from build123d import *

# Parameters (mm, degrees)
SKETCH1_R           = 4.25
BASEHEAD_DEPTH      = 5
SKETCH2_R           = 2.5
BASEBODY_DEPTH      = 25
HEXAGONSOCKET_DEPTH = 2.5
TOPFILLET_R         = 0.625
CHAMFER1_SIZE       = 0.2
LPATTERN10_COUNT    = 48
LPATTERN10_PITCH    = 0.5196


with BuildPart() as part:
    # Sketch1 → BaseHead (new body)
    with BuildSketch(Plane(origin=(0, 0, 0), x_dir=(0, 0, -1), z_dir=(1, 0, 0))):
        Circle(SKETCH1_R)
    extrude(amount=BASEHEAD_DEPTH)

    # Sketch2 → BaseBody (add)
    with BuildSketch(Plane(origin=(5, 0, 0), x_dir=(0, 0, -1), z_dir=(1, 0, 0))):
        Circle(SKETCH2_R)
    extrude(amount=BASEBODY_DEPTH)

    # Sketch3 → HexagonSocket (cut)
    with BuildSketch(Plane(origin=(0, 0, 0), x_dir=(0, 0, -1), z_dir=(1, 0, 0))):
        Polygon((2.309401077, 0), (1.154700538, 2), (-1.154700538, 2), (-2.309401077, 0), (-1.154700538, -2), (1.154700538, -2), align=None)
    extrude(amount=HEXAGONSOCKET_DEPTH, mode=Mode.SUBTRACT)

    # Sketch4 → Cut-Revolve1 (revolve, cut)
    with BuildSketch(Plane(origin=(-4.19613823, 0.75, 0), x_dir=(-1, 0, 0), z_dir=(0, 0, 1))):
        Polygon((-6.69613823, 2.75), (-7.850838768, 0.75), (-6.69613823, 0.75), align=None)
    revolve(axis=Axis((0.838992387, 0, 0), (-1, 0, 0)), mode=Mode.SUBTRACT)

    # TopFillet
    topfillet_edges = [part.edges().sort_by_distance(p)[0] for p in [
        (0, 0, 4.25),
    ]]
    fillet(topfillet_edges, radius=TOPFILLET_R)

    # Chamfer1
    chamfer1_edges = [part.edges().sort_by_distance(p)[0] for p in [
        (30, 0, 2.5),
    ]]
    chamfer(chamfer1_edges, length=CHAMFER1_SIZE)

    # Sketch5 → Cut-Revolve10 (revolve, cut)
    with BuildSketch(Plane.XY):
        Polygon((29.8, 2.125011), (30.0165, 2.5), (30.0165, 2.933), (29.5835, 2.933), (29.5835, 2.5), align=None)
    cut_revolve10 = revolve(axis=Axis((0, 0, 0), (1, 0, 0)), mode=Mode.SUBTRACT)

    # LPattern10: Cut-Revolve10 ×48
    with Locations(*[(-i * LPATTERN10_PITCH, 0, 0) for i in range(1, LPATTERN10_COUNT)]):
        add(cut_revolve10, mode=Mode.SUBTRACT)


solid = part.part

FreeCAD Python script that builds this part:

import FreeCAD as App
import Part
import Sketcher

V = App.Vector
Q = App.Units.Quantity


def edges_at(feature, points):
    """Names of the edges that pass closest to the given points."""
    edges = feature.Shape.Edges
    near = lambda p: min(range(len(edges)), key=lambda i: edges[i].distToShape(Part.Vertex(*p))[0])
    return sorted({f"Edge{near(p) + 1}" for p in points})

doc = App.newDocument("Part")
body = doc.addObject("PartDesign::Body", "Body")

# Sketch on YZ plane
sketch1 = body.newObject("Sketcher::SketchObject", "Sketch")
sketch1.AttachmentSupport = (doc.getObject("YZ_Plane"), [""])
sketch1.MapMode = "FlatFace"
sketch1.addGeometry(Part.Circle(V(0, 0, 0), V(0, 0, 1), 4.2), False)
sketch1.addConstraint([
    Sketcher.Constraint("Coincident", 0, 3, -1, 1),
    Sketcher.Constraint("Diameter", 0, 8.5),
])
pad1 = body.newObject("PartDesign::Pad", "Pad")
pad1.Profile = sketch1
pad1.Length = 5

# Sketch on YZ plane
sketch2 = body.newObject("Sketcher::SketchObject", "Sketch001")
sketch2.AttachmentSupport = (doc.getObject("YZ_Plane"), [""])
sketch2.MapMode = "FlatFace"
sketch2.AttachmentOffset = App.Placement(V(0, 0, 5), App.Rotation())
sketch2.addGeometry(Part.Circle(V(0, 0, 0), V(0, 0, 1), 2.5), False)
sketch2.addConstraint([
    Sketcher.Constraint("Coincident", 0, 3, -1, 1),
    Sketcher.Constraint("Diameter", 0, 5.0),
])
pad2 = body.newObject("PartDesign::Pad", "Pad001")
pad2.Profile = sketch2
pad2.Length = 25

# Sketch on YZ plane
sketch3 = body.newObject("Sketcher::SketchObject", "Sketch002")
sketch3.AttachmentSupport = (doc.getObject("YZ_Plane"), [""])
sketch3.MapMode = "FlatFace"
sketch3.addGeometry([
    Part.LineSegment(V(0, -2.3, 0), V(2, -1.2, 0)),  # 0
    Part.LineSegment(V(2, -1.2, 0), V(2, 1.2, 0)),  # 1
    Part.LineSegment(V(2, 1.2, 0), V(0, 2.3, 0)),  # 2
    Part.LineSegment(V(0, 2.3, 0), V(-2, 1.2, 0)),  # 3
    Part.LineSegment(V(-2, 1.2, 0), V(-2, -1.2, 0)),  # 4
    Part.LineSegment(V(-2, -1.2, 0), V(0, -2.3, 0)),  # 5
], False)
sketch3.addConstraint([
    Sketcher.Constraint("Coincident", 0, 2, 1, 1),
    Sketcher.Constraint("Coincident", 1, 2, 2, 1),
    Sketcher.Constraint("Coincident", 2, 2, 3, 1),
    Sketcher.Constraint("Coincident", 3, 2, 4, 1),
    Sketcher.Constraint("Coincident", 4, 2, 5, 1),
    Sketcher.Constraint("Coincident", 5, 2, 0, 1),
    Sketcher.Constraint("Vertical", 1),
    Sketcher.Constraint("Vertical", 4),
    Sketcher.Constraint("Symmetric", 0, 2, 3, 2, -1, 1),
    Sketcher.Constraint("Symmetric", 2, 2, 5, 2, -1, 1),
    Sketcher.Constraint("PointOnObject", 2, 2, -2),
    Sketcher.Constraint("Parallel", 2, 5),
    Sketcher.Constraint("Horizontal", 1, 2, 3, 2),
    Sketcher.Constraint("Angle", 0, Q("30 deg")),
    Sketcher.Constraint("DistanceX", -1, 1, 0, 2, 2.0),
    Sketcher.Constraint("DistanceY", 1, 1, 1, 2, 2.309401),
])
pocket1 = body.newObject("PartDesign::Pocket", "Pocket")
pocket1.Profile = sketch3
pocket1.Length = 2.5
pocket1.Reversed = True

# Sketch on XY plane
sketch4 = body.newObject("Sketcher::SketchObject", "Sketch003")
sketch4.AttachmentSupport = (doc.getObject("XY_Plane"), [""])
sketch4.MapMode = "FlatFace"
sketch4.addGeometry([
    Part.LineSegment(V(2.5, -2, 0), V(3.7, 0, 0)),
    Part.LineSegment(V(3.7, 0, 0), V(2.5, 0, 0)),
    Part.LineSegment(V(2.5, 0, 0), V(2.5, -2, 0)),
], False)
sketch4.addConstraint([
    Sketcher.Constraint("Coincident", 0, 2, 1, 1),
    Sketcher.Constraint("Coincident", 1, 2, 2, 1),
    Sketcher.Constraint("Coincident", 2, 2, 0, 1),
    Sketcher.Constraint("Horizontal", 1),
    Sketcher.Constraint("Vertical", 2),
    Sketcher.Constraint("PointOnObject", 0, 2, -1),
    Sketcher.Constraint("DistanceY", 2, 2, 2, 1, 2.0),
    Sketcher.Constraint("Angle", 0, Q("60 deg")),
    Sketcher.Constraint("DistanceX", -1, 1, 1, 2, 2.5),
])
groove = body.newObject("PartDesign::Groove", "Groove")
groove.Profile = sketch4
groove.ReferenceAxis = (sketch4, ["H_Axis"])
groove.Angle = 360
doc.recompute()

fillet = body.newObject("PartDesign::Fillet", "Fillet")
fillet.Base = (groove, edges_at(groove, [(0, 0, 4.25)]))
fillet.Radius = 0.625
doc.recompute()

chamfer = body.newObject("PartDesign::Chamfer", "Chamfer")
chamfer.Base = (fillet, edges_at(fillet, [(30, 0, 2.5)]))
chamfer.Size = 0.2

# Sketch on XY plane
sketch5 = body.newObject("Sketcher::SketchObject", "Sketch004")
sketch5.AttachmentSupport = (doc.getObject("XY_Plane"), [""])
sketch5.MapMode = "FlatFace"
sketch5.addGeometry([
    Part.LineSegment(V(29.8, 2.13, 0), V(30.02, 2.5, 0)),  # 0
    Part.LineSegment(V(30.02, 2.5, 0), V(30.02, 2.93, 0)),  # 1
    Part.LineSegment(V(30.02, 2.93, 0), V(29.58, 2.93, 0)),  # 2
    Part.LineSegment(V(29.58, 2.93, 0), V(29.58, 2.5, 0)),  # 3
    Part.LineSegment(V(29.58, 2.5, 0), V(29.8, 2.13, 0)),  # 4
], False)
sketch5.addConstraint([
    Sketcher.Constraint("Coincident", 0, 2, 1, 1),
    Sketcher.Constraint("Coincident", 1, 2, 2, 1),
    Sketcher.Constraint("Coincident", 2, 2, 3, 1),
    Sketcher.Constraint("Coincident", 3, 2, 4, 1),
    Sketcher.Constraint("Coincident", 4, 2, 0, 1),
    Sketcher.Constraint("Vertical", 1),
    Sketcher.Constraint("Horizontal", 2),
    Sketcher.Constraint("Vertical", 3),
    Sketcher.Constraint("Horizontal", 0, 2, 3, 2),
    Sketcher.Constraint("Equal", 2, 1),
    Sketcher.Constraint("Equal", 0, 4),
    Sketcher.Constraint("Angle", 0, Q("60 deg")),
    Sketcher.Constraint("DistanceY", -1, 1, 0, 2, 2.5),
    Sketcher.Constraint("DistanceX", -1, 1, 4, 2, 29.8),
    Sketcher.Constraint("DistanceX", 2, 2, 2, 1, 0.433),
])
groove2 = body.newObject("PartDesign::Groove", "Groove001")
groove2.Profile = sketch5
groove2.ReferenceAxis = (sketch5, ["H_Axis"])
groove2.Angle = 360
doc.recompute()

linearpattern = body.newObject("PartDesign::LinearPattern", "LinearPattern")
linearpattern.Originals = [groove2]
linearpattern.Direction = (doc.getObject("X_Axis"), [""])
linearpattern.Mode = "offset"
linearpattern.Offset = 0.5196
linearpattern.Occurrences = 48
linearpattern.Reversed = True
body.Tip = linearpattern

doc.recompute()
